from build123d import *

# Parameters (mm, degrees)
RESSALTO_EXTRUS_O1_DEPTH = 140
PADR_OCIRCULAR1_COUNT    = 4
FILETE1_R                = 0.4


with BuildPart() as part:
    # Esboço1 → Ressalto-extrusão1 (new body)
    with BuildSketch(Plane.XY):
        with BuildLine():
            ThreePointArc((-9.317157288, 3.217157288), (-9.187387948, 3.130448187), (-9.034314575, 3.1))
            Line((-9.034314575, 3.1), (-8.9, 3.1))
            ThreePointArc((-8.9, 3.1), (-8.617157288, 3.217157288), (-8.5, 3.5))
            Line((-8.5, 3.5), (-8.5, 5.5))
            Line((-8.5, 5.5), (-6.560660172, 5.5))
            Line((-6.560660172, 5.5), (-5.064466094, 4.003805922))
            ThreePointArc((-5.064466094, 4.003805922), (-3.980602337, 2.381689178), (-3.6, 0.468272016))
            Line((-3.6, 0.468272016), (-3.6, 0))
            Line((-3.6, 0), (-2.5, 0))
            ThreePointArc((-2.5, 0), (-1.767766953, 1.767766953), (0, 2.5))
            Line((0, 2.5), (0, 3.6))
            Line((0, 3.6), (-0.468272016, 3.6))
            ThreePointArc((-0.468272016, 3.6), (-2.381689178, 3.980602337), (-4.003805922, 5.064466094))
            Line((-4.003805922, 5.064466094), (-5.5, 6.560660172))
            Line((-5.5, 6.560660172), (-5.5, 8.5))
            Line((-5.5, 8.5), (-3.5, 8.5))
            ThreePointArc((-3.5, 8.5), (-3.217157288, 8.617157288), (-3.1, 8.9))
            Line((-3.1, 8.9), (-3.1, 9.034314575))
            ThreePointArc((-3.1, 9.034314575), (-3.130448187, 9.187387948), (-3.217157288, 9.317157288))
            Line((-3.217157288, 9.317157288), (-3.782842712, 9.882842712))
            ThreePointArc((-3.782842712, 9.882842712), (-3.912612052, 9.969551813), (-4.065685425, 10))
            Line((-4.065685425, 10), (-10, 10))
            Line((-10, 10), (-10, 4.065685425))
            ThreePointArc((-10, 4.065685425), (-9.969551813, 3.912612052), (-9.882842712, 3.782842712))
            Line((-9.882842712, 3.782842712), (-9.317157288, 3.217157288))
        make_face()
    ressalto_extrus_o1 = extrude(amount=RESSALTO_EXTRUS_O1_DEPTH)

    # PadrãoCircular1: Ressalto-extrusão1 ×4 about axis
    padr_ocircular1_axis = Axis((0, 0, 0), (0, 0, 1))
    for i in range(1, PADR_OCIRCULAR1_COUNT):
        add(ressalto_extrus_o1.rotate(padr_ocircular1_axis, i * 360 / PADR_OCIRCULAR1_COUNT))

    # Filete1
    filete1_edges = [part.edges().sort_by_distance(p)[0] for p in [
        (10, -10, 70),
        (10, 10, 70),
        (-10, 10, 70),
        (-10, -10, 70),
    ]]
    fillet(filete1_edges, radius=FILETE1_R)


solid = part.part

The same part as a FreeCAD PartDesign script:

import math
import FreeCAD as App
import Part
import Sketcher

V = App.Vector
Q = App.Units.Quantity


def edges_at(feature, points):
    """Names of the edges that pass closest to the given points."""
    edges = feature.Shape.Edges
    near = lambda p: min(range(len(edges)), key=lambda i: edges[i].distToShape(Part.Vertex(*p))[0])
    return sorted({f"Edge{near(p) + 1}" for p in points})

doc = App.newDocument("Part")
body = doc.addObject("PartDesign::Body", "Body")

sketch1 = body.newObject("Sketcher::SketchObject", "Sketch")
sketch1.AttachmentSupport = (doc.getObject("XY_Plane"), [""])
sketch1.MapMode = "FlatFace"
sketch1.addGeometry([
    Part.ArcOfCircle(Part.Circle(V(-9.03, 3.5, 0), V(0, 0, 1), 0.4), math.radians(-135), math.radians(-90)),
    Part.LineSegment(V(-9.03, 3.1, 0), V(-8.9, 3.1, 0)),
    Part.ArcOfCircle(Part.Circle(V(-8.9, 3.5, 0), V(0, 0, 1), 0.4), math.radians(-90), math.radians(0)),
    Part.LineSegment(V(-8.5, 3.5, 0), V(-8.5, 5.5, 0)),
    Part.LineSegment(V(-8.5, 5.5, 0), V(-6.56, 5.5, 0)),
    Part.LineSegment(V(-6.56, 5.5, 0), V(-5.06, 4, 0)),
    Part.ArcOfCircle(Part.Circle(V(-8.6, 0.47, 0), V(0, 0, 1), 5), math.radians(0), math.radians(45)),
    Part.LineSegment(V(-3.6, 0.47, 0), V(-3.6, 0, 0)),
    Part.LineSegment(V(-3.6, 0, 0), V(-2.5, 0, 0)),
    Part.ArcOfCircle(Part.Circle(V(0, 0, 0), V(0, 0, 1), 2.5), math.radians(90), math.radians(180)),
    Part.LineSegment(V(0, 2.5, 0), V(0, 3.6, 0)),
    Part.LineSegment(V(0, 3.6, 0), V(-0.47, 3.6, 0)),
    Part.ArcOfCircle(Part.Circle(V(-0.47, 8.6, 0), V(0, 0, 1), 5), math.radians(-135), math.radians(-90)),
    Part.LineSegment(V(-4, 5.06, 0), V(-5.5, 6.56, 0)),
    Part.LineSegment(V(-5.5, 6.56, 0), V(-5.5, 8.5, 0)),
    Part.LineSegment(V(-5.5, 8.5, 0), V(-3.5, 8.5, 0)),
    Part.ArcOfCircle(Part.Circle(V(-3.5, 8.9, 0), V(0, 0, 1), 0.4), math.radians(-90), math.radians(0)),
    Part.LineSegment(V(-3.1, 8.9, 0), V(-3.1, 9.03, 0)),
    Part.ArcOfCircle(Part.Circle(V(-3.5, 9.03, 0), V(0, 0, 1), 0.4), math.radians(0), math.radians(45)),
    Part.LineSegment(V(-3.22, 9.32, 0), V(-3.78, 9.88, 0)),
    Part.ArcOfCircle(Part.Circle(V(-4.07, 9.6, 0), V(0, 0, 1), 0.4), math.radians(45), math.radians(90)),
    Part.LineSegment(V(-4.07, 10, 0), V(-10, 10, 0)),
    Part.LineSegment(V(-10, 10, 0), V(-10, 4.07, 0)),
    Part.ArcOfCircle(Part.Circle(V(-9.6, 4.07, 0), V(0, 0, 1), 0.4), math.radians(180), math.radians(225)),
    Part.LineSegment(V(-9.88, 3.78, 0), V(-9.32, 3.22, 0)),
], False)
sketch1.addConstraint([
    Sketcher.Constraint("Tangent", 0, 2, 1, 1),
    Sketcher.Constraint("Tangent", 1, 2, 2, 1),
    Sketcher.Constraint("Tangent", 2, 2, 3, 1),
    Sketcher.Constraint("Coincident", 3, 2, 4, 1),
    Sketcher.Constraint("Coincident", 4, 2, 5, 1),
    Sketcher.Constraint("Tangent", 5, 2, 6, 2),
    Sketcher.Constraint("Tangent", 6, 1, 7, 1),
    Sketcher.Constraint("Coincident", 7, 2, 8, 1),
    Sketcher.Constraint("Coincident", 8, 2, 9, 2),
    Sketcher.Constraint("Coincident", 9, 1, 10, 1),
    Sketcher.Constraint("Coincident", 10, 2, 11, 1),
    Sketcher.Constraint("Tangent", 11, 2, 12, 2),
    Sketcher.Constraint("Tangent", 12, 1, 13, 1),
    Sketcher.Constraint("Coincident", 13, 2, 14, 1),
    Sketcher.Constraint("Coincident", 14, 2, 15, 1),
    Sketcher.Constraint("Tangent", 15, 2, 16, 1),
    Sketcher.Constraint("Tangent", 16, 2, 17, 1),
    Sketcher.Constraint("Tangent", 17, 2, 18, 1),
    Sketcher.Constraint("Tangent", 18, 2, 19, 1),
    Sketcher.Constraint("Tangent", 19, 2, 20, 1),
    Sketcher.Constraint("Tangent", 20, 2, 21, 1),
    Sketcher.Constraint("Coincident", 21, 2, 22, 1),
    Sketcher.Constraint("Tangent", 22, 2, 23, 1),
    Sketcher.Constraint("Tangent", 23, 2, 24, 1),
    Sketcher.Constraint("Tangent", 24, 2, 0, 1),
    Sketcher.Constraint("Horizontal", 1),
    Sketcher.Constraint("Vertical", 3),
    Sketcher.Constraint("Horizontal", 4),
    Sketcher.Constraint("Vertical", 7),
    Sketcher.Constraint("Horizontal", 8),
    Sketcher.Constraint("Vertical", 10),
    Sketcher.Constraint("Horizontal", 11),
    Sketcher.Constraint("Vertical", 14),
    Sketcher.Constraint("Horizontal", 15),
    Sketcher.Constraint("Vertical", 17),
    Sketcher.Constraint("Horizontal", 21),
    Sketcher.Constraint("Vertical", 22),
    Sketcher.Constraint("Coincident", 9, 3, -1, 1),
    Sketcher.Constraint("Equal", 0, 2),
    Sketcher.Constraint("Equal", 6, 12),
    Sketcher.Constraint("Equal", 2, 16),
    Sketcher.Constraint("Equal", 16, 18),
    Sketcher.Constraint("Equal", 18, 20),
    Sketcher.Constraint("Equal", 20, 23),
    Sketcher.Constraint("PointOnObject", 7, 2, -1),
    Sketcher.Constraint("PointOnObject", 9, 1, -2),
    Sketcher.Constraint("Parallel", 5, 13),
    Sketcher.Constraint("Parallel", 13, 19),
    Sketcher.Constraint("Parallel", 19, 24),
    Sketcher.Constraint("Equal", 15, 3),
    Sketcher.Constraint("Equal", 11, 7),
    Sketcher.Constraint("Equal", 8, 10),
    Sketcher.Constraint("Equal", 4, 14),
    Sketcher.Constraint("Equal", 1, 17),
    Sketcher.Constraint("Equal", 21, 22),
    Sketcher.Constraint("Equal", 5, 13),
    Sketcher.Constraint("Equal", 19, 24),
    Sketcher.Constraint("Radius", 6, Q("5 mm")),
    Sketcher.Constraint("Radius", 0, Q("0.4 mm")),
    Sketcher.Constraint("Radius", 9, Q("2.5 mm")),
    Sketcher.Constraint("DistanceX", 15, 1, 15, 2, Q("2 mm")),
    Sketcher.Constraint("DistanceX", 8, 1, 8, 2, Q("1.1 mm")),
    Sketcher.Constraint("DistanceY", -1, 1, 20, 2, Q("10 mm")),
    Sketcher.Constraint("DistanceY", 4, 2, 14, 2, Q("3 mm")),
    Sketcher.Constraint("Distance", 19, Q("0.8 mm")),
    Sketcher.Constraint("DistanceY", -1, 1, 0, 3, Q("3.5 mm")),
    Sketcher.Constraint("DistanceX", 4, 1, 4, 2, Q("1.93934 mm")),
])
pad1 = body.newObject("PartDesign::Pad", "Pad")
pad1.Profile = sketch1
pad1.Length = 140
doc.recompute()

polarpattern = body.newObject("PartDesign::PolarPattern", "PolarPattern")
polarpattern.Originals = [pad1]
polarpattern.Axis = (doc.getObject("Z_Axis"), [""])
polarpattern.Angle = 360
polarpattern.Occurrences = 4
body.Tip = polarpattern
doc.recompute()

fillet = body.newObject("PartDesign::Fillet", "Fillet")
fillet.Base = (polarpattern, edges_at(polarpattern, [
    (10, -10, 70),
    (10, 10, 70),
    (-10, 10, 70),
    (-10, -10, 70),
]))
fillet.Radius = 0.4

doc.recompute()
